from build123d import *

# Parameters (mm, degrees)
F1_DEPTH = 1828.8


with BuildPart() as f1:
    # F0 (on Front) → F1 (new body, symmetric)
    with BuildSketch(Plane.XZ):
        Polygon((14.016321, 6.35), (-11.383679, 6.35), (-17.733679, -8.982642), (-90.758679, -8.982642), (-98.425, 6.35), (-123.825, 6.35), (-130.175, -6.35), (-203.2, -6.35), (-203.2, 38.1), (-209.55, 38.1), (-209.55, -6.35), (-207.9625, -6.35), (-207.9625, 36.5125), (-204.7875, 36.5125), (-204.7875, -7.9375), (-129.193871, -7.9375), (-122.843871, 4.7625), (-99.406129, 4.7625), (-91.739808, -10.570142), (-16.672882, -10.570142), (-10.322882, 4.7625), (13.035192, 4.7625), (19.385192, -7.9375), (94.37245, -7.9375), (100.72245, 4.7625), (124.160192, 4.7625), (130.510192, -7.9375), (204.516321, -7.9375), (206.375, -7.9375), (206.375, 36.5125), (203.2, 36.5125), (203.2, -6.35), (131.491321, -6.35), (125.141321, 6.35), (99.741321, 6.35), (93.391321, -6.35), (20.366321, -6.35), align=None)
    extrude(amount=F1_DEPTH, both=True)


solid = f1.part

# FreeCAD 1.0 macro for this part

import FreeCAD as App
import Part
import Sketcher

V = App.Vector
Q = App.Units.Quantity


def add_polygon(sketch, points):
    """Adds a closed chain of lines whose ends are joined by coincident constraints."""
    first, n = sketch.GeometryCount, len(points)
    for a, b in zip(points, points[1:] + points[:1]):
        sketch.addGeometry(Part.LineSegment(App.Vector(*a, 0), App.Vector(*b, 0)), False)
    for i in range(n):
        sketch.addConstraint(Sketcher.Constraint("Coincident", first + i, 2, first + (i + 1) % n, 1))

doc = App.newDocument("Part")
body = doc.addObject("PartDesign::Body", "Body")

sketch1 = doc.addObject("Sketcher::SketchObject", "Sketch")
body.addObject(sketch1)
sketch1.AttachmentSupport = (doc.XZ_Plane, [""])
sketch1.MapMode = "FlatFace"
add_polygon(sketch1, [(14, 6.3), (-11.4, 6.3), (-17.7, -9), (-90.8, -9), (-98.4, 6.3), (-123.8, 6.3), (-130.2, -6.3), (-203.2, -6.3), (-203.2, 38.1), (-209.6, 38.1), (-209.6, -6.3), (-208, -6.3), (-208, 36.5), (-204.8, 36.5), (-204.8, -7.9), (-129.2, -7.9), (-122.8, 4.8), (-99.4, 4.8), (-91.7, -10.6), (-16.7, -10.6), (-10.3, 4.8), (13, 4.8), (19.4, -7.9), (94.4, -7.9), (100.7, 4.8), (124.2, 4.8), (130.5, -7.9), (206.4, -7.9), (206.4, 36.5), (203.2, 36.5), (203.2, -6.3), (131.5, -6.3), (125.1, 6.3), (99.7, 6.3), (93.4, -6.3), (20.4, -6.3)])
sketch1.addConstraint([
    Sketcher.Constraint("Horizontal", 0),
    Sketcher.Constraint("Horizontal", 2),
    Sketcher.Constraint("Horizontal", 4),
    Sketcher.Constraint("Horizontal", 6),
    Sketcher.Constraint("Vertical", 7),
    Sketcher.Constraint("Horizontal", 8),
    Sketcher.Constraint("Vertical", 9),
    Sketcher.Constraint("Horizontal", 10),
    Sketcher.Constraint("Vertical", 11),
    Sketcher.Constraint("Horizontal", 12),
    Sketcher.Constraint("Vertical", 13),
    Sketcher.Constraint("Horizontal", 14),
    Sketcher.Constraint("Horizontal", 16),
    Sketcher.Constraint("Horizontal", 18),
    Sketcher.Constraint("Horizontal", 20),
    Sketcher.Constraint("Horizontal", 22),
    Sketcher.Constraint("Horizontal", 24),
    Sketcher.Constraint("Horizontal", 26),
    Sketcher.Constraint("Vertical", 27),
    Sketcher.Constraint("Horizontal", 28),
    Sketcher.Constraint("Vertical", 29),
    Sketcher.Constraint("Horizontal", 30),
    Sketcher.Constraint("Horizontal", 32),
    Sketcher.Constraint("Horizontal", 34),
    Sketcher.Constraint("Symmetric", 6, 2, 29, 2, -2),
    Sketcher.Constraint("Parallel", 5, 15),
    Sketcher.Constraint("Parallel", 3, 17),
    Sketcher.Constraint("Parallel", 1, 19),
    Sketcher.Constraint("Parallel", 17, 21),
    Sketcher.Constraint("Parallel", 15, 23),
    Sketcher.Constraint("Parallel", 21, 25),
    Sketcher.Constraint("Parallel", 25, 31),
    Sketcher.Constraint("Parallel", 23, 33),
    Sketcher.Constraint("Parallel", 31, 35),
    Sketcher.Constraint("Horizontal", 0, 2, 3, 2),
    Sketcher.Constraint("Horizontal", 6, 2, 9, 2),
    Sketcher.Constraint("Horizontal", 16, 2, 19, 2),
    Sketcher.Constraint("Horizontal", 14, 2, 21, 2),
    Sketcher.Constraint("Horizontal", 20, 2, 23, 2),
    Sketcher.Constraint("Horizontal", 22, 2, 25, 2),
    Sketcher.Constraint("Horizontal", 12, 2, 27, 2),
    Sketcher.Constraint("Horizontal", 4, 2, 31, 2),
    Sketcher.Constraint("Horizontal", 30, 2, 33, 2),
    Sketcher.Constraint("Equal", 0, 4),
    Sketcher.Constraint("Equal", 2, 6),
    Sketcher.Constraint("Equal", 16, 24),
    Sketcher.Constraint("Equal", 12, 28),
    Sketcher.Constraint("Equal", 4, 32),
    Sketcher.Constraint("Equal", 6, 34),
    Sketcher.Constraint("Equal", 9, 13),
    Sketcher.Constraint("Equal", 5, 15),
    Sketcher.Constraint("Equal", 3, 17),
    Sketcher.Constraint("Equal", 15, 21),
    Sketcher.Constraint("DistanceX", 0, 2, 0, 1, Q("1 in")),
    Sketcher.Constraint("DistanceX", 6, 2, -1, 1, Q("8 in")),
    Sketcher.Constraint("DistanceX", 8, 2, 8, 1, Q("0.25 in")),
    Sketcher.Constraint("DistanceY", 7, 1, 7, 2, Q("1.75 in")),
    Sketcher.Constraint("DistanceY", -1, 1, 7, 2, Q("1.5 in")),
    Sketcher.Constraint("DistanceY", 5, 2, 4, 2, Q("0.5 in")),
    Sketcher.Constraint("DistanceX", 2, 2, 2, 1, Q("2.875 in")),
    Sketcher.Constraint("DistanceX", 10, 1, 10, 2, Q("0.0625 in")),
    Sketcher.Constraint("DistanceX", 12, 1, 12, 2, Q("0.125 in")),
    Sketcher.Constraint("DistanceY", 11, 1, 11, 2, Q("1.6875 in")),
    Sketcher.Constraint("DistanceX", 1, 2, 0, 2, Q("0.25 in")),
    Sketcher.Constraint("DistanceX", 5, 2, 4, 2, Q("0.25 in")),
    Sketcher.Constraint("DistanceX", 21, 2, 24, 2, Q("4.125 in")),
    Sketcher.Constraint("DistanceX", 14, 1, 14, 2, 75.593629),
    Sketcher.Constraint("DistanceX", 16, 1, 16, 2, 23.437742),
    Sketcher.Constraint("DistanceX", 26, 1, 26, 2, 75.864808),
    Sketcher.Constraint("DistanceX", 30, 2, 30, 1, 71.708679),
    Sketcher.Constraint("DistanceX", 18, 1, 18, 2, 75.066926),
])
pad1 = doc.addObject("PartDesign::Pad", "Pad")
body.addObject(pad1)
pad1.Profile = sketch1
pad1.Length = Q("144 in")
pad1.Midplane = True

doc.recompute()
